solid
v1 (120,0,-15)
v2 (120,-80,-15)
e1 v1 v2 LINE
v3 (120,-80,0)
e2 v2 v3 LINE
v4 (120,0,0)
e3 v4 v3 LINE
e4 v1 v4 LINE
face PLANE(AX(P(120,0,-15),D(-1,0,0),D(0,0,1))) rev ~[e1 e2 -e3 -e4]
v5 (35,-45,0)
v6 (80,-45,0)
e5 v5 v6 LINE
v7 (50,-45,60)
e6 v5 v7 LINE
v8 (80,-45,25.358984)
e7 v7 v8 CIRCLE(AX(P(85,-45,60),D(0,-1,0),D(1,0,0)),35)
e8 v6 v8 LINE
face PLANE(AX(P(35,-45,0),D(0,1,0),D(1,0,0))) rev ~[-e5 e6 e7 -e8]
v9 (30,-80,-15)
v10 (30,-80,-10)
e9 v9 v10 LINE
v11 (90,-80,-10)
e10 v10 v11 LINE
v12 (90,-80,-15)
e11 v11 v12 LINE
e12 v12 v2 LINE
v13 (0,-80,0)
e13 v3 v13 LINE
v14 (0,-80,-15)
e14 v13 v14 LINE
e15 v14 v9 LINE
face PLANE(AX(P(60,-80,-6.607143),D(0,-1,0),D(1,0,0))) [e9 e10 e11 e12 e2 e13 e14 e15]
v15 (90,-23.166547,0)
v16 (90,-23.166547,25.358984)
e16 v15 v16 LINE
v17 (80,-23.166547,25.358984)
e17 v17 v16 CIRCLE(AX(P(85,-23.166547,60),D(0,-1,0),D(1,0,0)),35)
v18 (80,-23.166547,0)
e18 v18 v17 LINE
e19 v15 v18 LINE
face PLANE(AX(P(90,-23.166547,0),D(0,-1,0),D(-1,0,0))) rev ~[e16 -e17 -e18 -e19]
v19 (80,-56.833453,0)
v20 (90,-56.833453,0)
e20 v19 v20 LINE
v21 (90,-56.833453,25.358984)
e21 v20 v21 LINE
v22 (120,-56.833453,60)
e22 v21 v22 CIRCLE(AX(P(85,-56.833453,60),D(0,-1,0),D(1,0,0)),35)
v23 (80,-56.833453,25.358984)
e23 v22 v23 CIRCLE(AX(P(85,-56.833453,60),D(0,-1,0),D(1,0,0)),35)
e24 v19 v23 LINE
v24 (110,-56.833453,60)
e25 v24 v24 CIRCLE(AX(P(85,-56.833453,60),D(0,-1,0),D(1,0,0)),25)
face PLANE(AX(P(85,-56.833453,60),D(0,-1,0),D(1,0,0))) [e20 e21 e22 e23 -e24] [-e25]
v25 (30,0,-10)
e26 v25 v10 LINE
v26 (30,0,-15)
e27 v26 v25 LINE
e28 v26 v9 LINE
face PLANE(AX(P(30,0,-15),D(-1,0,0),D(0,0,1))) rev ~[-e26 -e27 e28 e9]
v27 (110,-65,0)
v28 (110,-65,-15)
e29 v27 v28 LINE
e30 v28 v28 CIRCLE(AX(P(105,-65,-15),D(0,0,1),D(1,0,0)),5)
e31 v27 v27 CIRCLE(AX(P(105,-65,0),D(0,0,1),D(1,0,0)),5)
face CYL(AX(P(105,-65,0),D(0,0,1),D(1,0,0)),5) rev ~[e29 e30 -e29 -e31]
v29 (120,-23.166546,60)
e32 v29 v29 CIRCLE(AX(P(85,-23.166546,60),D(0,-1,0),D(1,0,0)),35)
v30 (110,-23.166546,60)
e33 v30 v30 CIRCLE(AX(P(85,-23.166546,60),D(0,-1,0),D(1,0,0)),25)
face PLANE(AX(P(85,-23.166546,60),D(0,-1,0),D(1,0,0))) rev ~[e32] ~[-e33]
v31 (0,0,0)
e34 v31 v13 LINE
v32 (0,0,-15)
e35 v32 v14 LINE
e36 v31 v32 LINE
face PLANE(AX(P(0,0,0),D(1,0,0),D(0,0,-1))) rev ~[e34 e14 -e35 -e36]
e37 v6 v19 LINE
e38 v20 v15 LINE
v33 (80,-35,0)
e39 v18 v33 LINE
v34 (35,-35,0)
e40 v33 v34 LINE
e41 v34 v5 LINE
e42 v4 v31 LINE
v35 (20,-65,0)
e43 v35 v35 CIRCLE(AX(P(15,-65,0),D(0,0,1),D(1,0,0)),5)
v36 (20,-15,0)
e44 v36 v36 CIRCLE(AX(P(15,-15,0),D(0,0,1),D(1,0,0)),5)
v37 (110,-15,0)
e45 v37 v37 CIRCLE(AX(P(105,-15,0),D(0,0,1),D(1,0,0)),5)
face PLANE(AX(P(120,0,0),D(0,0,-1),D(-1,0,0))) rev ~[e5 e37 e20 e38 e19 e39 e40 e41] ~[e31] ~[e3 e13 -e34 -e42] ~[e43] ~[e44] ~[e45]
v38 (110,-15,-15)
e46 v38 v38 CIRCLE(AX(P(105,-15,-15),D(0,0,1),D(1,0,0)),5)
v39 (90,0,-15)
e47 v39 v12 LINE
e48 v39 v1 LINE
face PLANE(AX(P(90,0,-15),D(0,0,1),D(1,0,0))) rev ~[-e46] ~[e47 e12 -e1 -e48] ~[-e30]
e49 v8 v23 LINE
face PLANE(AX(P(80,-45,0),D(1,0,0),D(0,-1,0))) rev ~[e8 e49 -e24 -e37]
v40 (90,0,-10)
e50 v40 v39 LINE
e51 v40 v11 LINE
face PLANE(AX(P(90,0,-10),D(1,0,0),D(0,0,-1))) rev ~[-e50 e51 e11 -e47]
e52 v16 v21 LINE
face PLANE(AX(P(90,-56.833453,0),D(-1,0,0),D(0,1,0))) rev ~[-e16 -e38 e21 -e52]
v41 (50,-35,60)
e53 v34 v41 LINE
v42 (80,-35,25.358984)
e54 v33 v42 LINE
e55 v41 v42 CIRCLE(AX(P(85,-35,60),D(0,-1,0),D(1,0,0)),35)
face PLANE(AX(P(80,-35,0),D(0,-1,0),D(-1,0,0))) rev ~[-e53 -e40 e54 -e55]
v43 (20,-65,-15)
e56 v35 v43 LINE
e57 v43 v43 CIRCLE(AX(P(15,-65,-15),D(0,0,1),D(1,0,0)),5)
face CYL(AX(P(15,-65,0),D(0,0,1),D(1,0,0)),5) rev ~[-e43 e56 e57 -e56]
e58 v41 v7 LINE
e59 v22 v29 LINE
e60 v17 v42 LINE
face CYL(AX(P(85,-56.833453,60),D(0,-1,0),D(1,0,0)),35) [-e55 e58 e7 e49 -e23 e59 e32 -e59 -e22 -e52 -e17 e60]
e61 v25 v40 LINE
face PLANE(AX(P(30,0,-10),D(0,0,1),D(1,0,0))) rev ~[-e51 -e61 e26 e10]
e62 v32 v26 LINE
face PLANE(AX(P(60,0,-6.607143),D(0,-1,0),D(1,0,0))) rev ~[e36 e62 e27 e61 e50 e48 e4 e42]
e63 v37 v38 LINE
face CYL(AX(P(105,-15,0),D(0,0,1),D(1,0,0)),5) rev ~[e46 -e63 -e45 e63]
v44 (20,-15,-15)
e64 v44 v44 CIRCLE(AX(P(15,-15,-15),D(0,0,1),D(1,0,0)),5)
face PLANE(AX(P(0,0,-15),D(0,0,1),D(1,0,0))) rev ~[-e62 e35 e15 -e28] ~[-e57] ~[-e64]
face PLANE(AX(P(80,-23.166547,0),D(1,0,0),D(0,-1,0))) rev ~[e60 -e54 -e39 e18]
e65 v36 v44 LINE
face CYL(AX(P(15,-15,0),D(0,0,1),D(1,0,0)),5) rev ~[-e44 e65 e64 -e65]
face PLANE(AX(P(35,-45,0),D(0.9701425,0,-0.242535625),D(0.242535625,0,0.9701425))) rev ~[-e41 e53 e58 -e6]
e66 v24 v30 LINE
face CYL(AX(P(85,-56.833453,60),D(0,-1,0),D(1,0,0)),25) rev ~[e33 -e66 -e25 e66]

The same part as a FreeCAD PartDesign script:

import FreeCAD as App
import Part
import Sketcher

V = App.Vector

doc = App.newDocument("Part")
body = doc.addObject("PartDesign::Body", "Body")

# Sketch on XZ plane
sketch1 = body.newObject("Sketcher::SketchObject", "Sketch")
sketch1.AttachmentSupport = (doc.getObject("XZ_Plane"), [""])
sketch1.MapMode = "FlatFace"
sketch1.addGeometry(Part.LineSegment(V(120, 0, 0), V(0, 0, 0)), False)
sketch1.addGeometry(Part.LineSegment(V(0, 0, 0), V(0, -15, 0)), False)
sketch1.addGeometry(Part.LineSegment(V(0, -15, 0), V(30, -15, 0)), False)
sketch1.addGeometry(Part.LineSegment(V(30, -15, 0), V(30, -10, 0)), False)
sketch1.addGeometry(Part.LineSegment(V(30, -10, 0), V(90, -10, 0)), False)
sketch1.addGeometry(Part.LineSegment(V(90, -10, 0), V(90, -15, 0)), False)
sketch1.addGeometry(Part.LineSegment(V(90, -15, 0), V(120, -15, 0)), False)
sketch1.addGeometry(Part.LineSegment(V(120, -15, 0), V(120, 0, 0)), False)
sketch1.addConstraint(Sketcher.Constraint("Coincident", 0, 2, 1, 1))
sketch1.addConstraint(Sketcher.Constraint("Coincident", 1, 2, 2, 1))
sketch1.addConstraint(Sketcher.Constraint("Coincident", 2, 2, 3, 1))
sketch1.addConstraint(Sketcher.Constraint("Coincident", 3, 2, 4, 1))
sketch1.addConstraint(Sketcher.Constraint("Coincident", 4, 2, 5, 1))
sketch1.addConstraint(Sketcher.Constraint("Coincident", 5, 2, 6, 1))
sketch1.addConstraint(Sketcher.Constraint("Coincident", 6, 2, 7, 1))
sketch1.addConstraint(Sketcher.Constraint("Coincident", 7, 2, 0, 1))
sketch1.addConstraint(Sketcher.Constraint("Horizontal", 0))
sketch1.addConstraint(Sketcher.Constraint("Vertical", 1))
sketch1.addConstraint(Sketcher.Constraint("Horizontal", 2))
sketch1.addConstraint(Sketcher.Constraint("Vertical", 3))
sketch1.addConstraint(Sketcher.Constraint("Horizontal", 4))
sketch1.addConstraint(Sketcher.Constraint("Vertical", 5))
sketch1.addConstraint(Sketcher.Constraint("Horizontal", 6))
sketch1.addConstraint(Sketcher.Constraint("Vertical", 7))
sketch1.addConstraint(Sketcher.Constraint("Coincident", 0, 2, -1, 1))
sketch1.addConstraint(Sketcher.Constraint("Horizontal", 2, 2, 5, 2))
sketch1.addConstraint(Sketcher.Constraint("Equal", 2, 6))
sketch1.addConstraint(Sketcher.Constraint("DistanceX", 0, 2, 0, 1, 120.0))
sketch1.addConstraint(Sketcher.Constraint("DistanceX", 2, 1, 2, 2, 30.0))
sketch1.addConstraint(Sketcher.Constraint("DistanceY", 1, 2, 1, 1, 15.0))
sketch1.addConstraint(Sketcher.Constraint("DistanceY", 3, 1, 3, 2, 5.0))
pad1 = body.newObject("PartDesign::Pad", "Pad")
pad1.Profile = sketch1
pad1.Length = 80

# Sketch on XY plane
sketch2 = body.newObject("Sketcher::SketchObject", "Sketch001")
sketch2.AttachmentSupport = (doc.getObject("XY_Plane"), [""])
sketch2.MapMode = "FlatFace"
sketch2.addGeometry(Part.Circle(V(15, -15, 0), V(0, 0, 1), 5), False)
sketch2.addGeometry(Part.Circle(V(15, -65, 0), V(0, 0, 1), 5), False)
sketch2.addGeometry(Part.Circle(V(105, -65, 0), V(0, 0, 1), 5), False)
sketch2.addGeometry(Part.Circle(V(105, -15, 0), V(0, 0, 1), 5), False)
sketch2.addConstraint(Sketcher.Constraint("Equal", 0, 1))
sketch2.addConstraint(Sketcher.Constraint("Equal", 1, 2))
sketch2.addConstraint(Sketcher.Constraint("Equal", 2, 3))
sketch2.addConstraint(Sketcher.Constraint("Horizontal", 1, 3, 2, 3))
sketch2.addConstraint(Sketcher.Constraint("Horizontal", 0, 3, 3, 3))
sketch2.addConstraint(Sketcher.Constraint("Vertical", 0, 3, 1, 3))
sketch2.addConstraint(Sketcher.Constraint("Vertical", 2, 3, 3, 3))
sketch2.addConstraint(Sketcher.Constraint("Diameter", 0, 10.0))
sketch2.addConstraint(Sketcher.Constraint("DistanceX", -1, 1, 0, 3, 15.0))
sketch2.addConstraint(Sketcher.Constraint("DistanceY", 0, 3, -1, 1, 15.0))
sketch2.addConstraint(Sketcher.Constraint("DistanceY", 1, 3, -1, 1, 65.0))
sketch2.addConstraint(Sketcher.Constraint("DistanceX", -1, 1, 2, 3, 105.0))
pocket1 = body.newObject("PartDesign::Pocket", "Pocket")
pocket1.Profile = sketch2
pocket1.Length = 25

# Sketch on XY plane
sketch3 = body.newObject("Sketcher::SketchObject", "Sketch002")
sketch3.AttachmentSupport = (doc.getObject("XY_Plane"), [""])
sketch3.MapMode = "FlatFace"
sketch3.addGeometry(Part.LineSegment(V(35, -45, 0), V(80, -45, 0)), False)
sketch3.addGeometry(Part.LineSegment(V(80, -45, 0), V(80, -57, 0)), False)
sketch3.addGeometry(Part.LineSegment(V(80, -57, 0), V(90, -57, 0)), False)
sketch3.addGeometry(Part.LineSegment(V(90, -57, 0), V(90, -23, 0)), False)
sketch3.addGeometry(Part.LineSegment(V(90, -23, 0), V(80, -23, 0)), False)
sketch3.addGeometry(Part.LineSegment(V(80, -23, 0), V(80, -35, 0)), False)
sketch3.addGeometry(Part.LineSegment(V(80, -35, 0), V(35, -35, 0)), False)
sketch3.addGeometry(Part.LineSegment(V(35, -35, 0), V(35, -45, 0)), False)
sketch3.addConstraint(Sketcher.Constraint("Coincident", 0, 2, 1, 1))
sketch3.addConstraint(Sketcher.Constraint("Coincident", 1, 2, 2, 1))
sketch3.addConstraint(Sketcher.Constraint("Coincident", 2, 2, 3, 1))
sketch3.addConstraint(Sketcher.Constraint("Coincident", 3, 2, 4, 1))
sketch3.addConstraint(Sketcher.Constraint("Coincident", 4, 2, 5, 1))
sketch3.addConstraint(Sketcher.Constraint("Coincident", 5, 2, 6, 1))
sketch3.addConstraint(Sketcher.Constraint("Coincident", 6, 2, 7, 1))
sketch3.addConstraint(Sketcher.Constraint("Coincident", 7, 2, 0, 1))
sketch3.addConstraint(Sketcher.Constraint("Horizontal", 0))
sketch3.addConstraint(Sketcher.Constraint("Vertical", 1))
sketch3.addConstraint(Sketcher.Constraint("Horizontal", 2))
sketch3.addConstraint(Sketcher.Constraint("Vertical", 3))
sketch3.addConstraint(Sketcher.Constraint("Horizontal", 4))
sketch3.addConstraint(Sketcher.Constraint("Vertical", 5))
sketch3.addConstraint(Sketcher.Constraint("Horizontal", 6))
sketch3.addConstraint(Sketcher.Constraint("Vertical", 7))
sketch3.addConstraint(Sketcher.Constraint("Vertical", 1, 2, 4, 2))
sketch3.addConstraint(Sketcher.Constraint("Equal", 1, 5))
sketch3.addConstraint(Sketcher.Constraint("Equal", 4, 7))
sketch3.addConstraint(Sketcher.Constraint("DistanceX", 0, 1, 0, 2, 45.0))
sketch3.addConstraint(Sketcher.Constraint("DistanceX", 2, 1, 2, 2, 10.0))
sketch3.addConstraint(Sketcher.Constraint("DistanceX", -1, 1, 0, 2, 80.0))
sketch3.addConstraint(Sketcher.Constraint("DistanceY", 0, 2, -1, 1, 45.0))
sketch3.addConstraint(Sketcher.Constraint("DistanceY", 1, 2, 1, 1, 11.833453))
pad2 = body.newObject("PartDesign::Pad", "Pad001")
pad2.Profile = sketch3
pad2.Length = 60

# Sketch on XZ plane
sketch4 = body.newObject("Sketcher::SketchObject", "Sketch003")
sketch4.AttachmentSupport = (doc.getObject("XZ_Plane"), [""])
sketch4.MapMode = "FlatFace"
sketch4.AttachmentOffset = App.Placement(V(0, 0, 56.833453), App.Rotation())
sketch4.addGeometry(Part.Circle(V(85, 60, 0), V(0, 0, 1), 35), False)
sketch4.addConstraint(Sketcher.Constraint("Diameter", 0, 70.0))
sketch4.addConstraint(Sketcher.Constraint("DistanceX", -1, 1, 0, 3, 85.0))
sketch4.addConstraint(Sketcher.Constraint("DistanceY", -1, 1, 0, 3, 60.0))
pad3 = body.newObject("PartDesign::Pad", "Pad002")
pad3.Profile = sketch4
pad3.Type = "UpToLast"
pad3.Reversed = True

# Sketch on XZ plane
sketch5 = body.newObject("Sketcher::SketchObject", "Sketch004")
sketch5.AttachmentSupport = (doc.getObject("XZ_Plane"), [""])
sketch5.MapMode = "FlatFace"
sketch5.AttachmentOffset = App.Placement(V(0, 0, 56.833453), App.Rotation())
sketch5.addGeometry(Part.Circle(V(85, 60, 0), V(0, 0, 1), 25), False)
sketch5.addConstraint(Sketcher.Constraint("Diameter", 0, 50.0))
sketch5.addConstraint(Sketcher.Constraint("DistanceX", -1, 1, 0, 3, 85.0))
sketch5.addConstraint(Sketcher.Constraint("DistanceY", -1, 1, 0, 3, 60.0))
pocket2 = body.newObject("PartDesign::Pocket", "Pocket001")
pocket2.Profile = sketch5
pocket2.Length = 52.6

# Sketch on XZ plane
sketch6 = body.newObject("Sketcher::SketchObject", "Sketch005")
sketch6.AttachmentSupport = (doc.getObject("XZ_Plane"), [""])
sketch6.MapMode = "FlatFace"
sketch6.AttachmentOffset = App.Placement(V(0, 0, 45), App.Rotation())
sketch6.addGeometry(Part.LineSegment(V(35, 60, 0), V(35, 0, 0)), False)
sketch6.addGeometry(Part.LineSegment(V(35, 0, 0), V(50, 60, 0)), False)
sketch6.addGeometry(Part.LineSegment(V(50, 60, 0), V(35, 60, 0)), False)
sketch6.addConstraint(Sketcher.Constraint("Coincident", 0, 2, 1, 1))
sketch6.addConstraint(Sketcher.Constraint("Coincident", 1, 2, 2, 1))
sketch6.addConstraint(Sketcher.Constraint("Coincident", 2, 2, 0, 1))
sketch6.addConstraint(Sketcher.Constraint("Vertical", 0))
sketch6.addConstraint(Sketcher.Constraint("Horizontal", 2))
sketch6.addConstraint(Sketcher.Constraint("PointOnObject", 0, 2, -1))
sketch6.addConstraint(Sketcher.Constraint("DistanceX", 2, 2, 2, 1, 15.0))
sketch6.addConstraint(Sketcher.Constraint("DistanceY", 0, 2, 0, 1, 60.0))
sketch6.addConstraint(Sketcher.Constraint("DistanceX", -1, 1, 0, 2, 35.0))
pocket3 = body.newObject("PartDesign::Pocket", "Pocket002")
pocket3.Profile = sketch6
pocket3.Length = 25

doc.recompute()
